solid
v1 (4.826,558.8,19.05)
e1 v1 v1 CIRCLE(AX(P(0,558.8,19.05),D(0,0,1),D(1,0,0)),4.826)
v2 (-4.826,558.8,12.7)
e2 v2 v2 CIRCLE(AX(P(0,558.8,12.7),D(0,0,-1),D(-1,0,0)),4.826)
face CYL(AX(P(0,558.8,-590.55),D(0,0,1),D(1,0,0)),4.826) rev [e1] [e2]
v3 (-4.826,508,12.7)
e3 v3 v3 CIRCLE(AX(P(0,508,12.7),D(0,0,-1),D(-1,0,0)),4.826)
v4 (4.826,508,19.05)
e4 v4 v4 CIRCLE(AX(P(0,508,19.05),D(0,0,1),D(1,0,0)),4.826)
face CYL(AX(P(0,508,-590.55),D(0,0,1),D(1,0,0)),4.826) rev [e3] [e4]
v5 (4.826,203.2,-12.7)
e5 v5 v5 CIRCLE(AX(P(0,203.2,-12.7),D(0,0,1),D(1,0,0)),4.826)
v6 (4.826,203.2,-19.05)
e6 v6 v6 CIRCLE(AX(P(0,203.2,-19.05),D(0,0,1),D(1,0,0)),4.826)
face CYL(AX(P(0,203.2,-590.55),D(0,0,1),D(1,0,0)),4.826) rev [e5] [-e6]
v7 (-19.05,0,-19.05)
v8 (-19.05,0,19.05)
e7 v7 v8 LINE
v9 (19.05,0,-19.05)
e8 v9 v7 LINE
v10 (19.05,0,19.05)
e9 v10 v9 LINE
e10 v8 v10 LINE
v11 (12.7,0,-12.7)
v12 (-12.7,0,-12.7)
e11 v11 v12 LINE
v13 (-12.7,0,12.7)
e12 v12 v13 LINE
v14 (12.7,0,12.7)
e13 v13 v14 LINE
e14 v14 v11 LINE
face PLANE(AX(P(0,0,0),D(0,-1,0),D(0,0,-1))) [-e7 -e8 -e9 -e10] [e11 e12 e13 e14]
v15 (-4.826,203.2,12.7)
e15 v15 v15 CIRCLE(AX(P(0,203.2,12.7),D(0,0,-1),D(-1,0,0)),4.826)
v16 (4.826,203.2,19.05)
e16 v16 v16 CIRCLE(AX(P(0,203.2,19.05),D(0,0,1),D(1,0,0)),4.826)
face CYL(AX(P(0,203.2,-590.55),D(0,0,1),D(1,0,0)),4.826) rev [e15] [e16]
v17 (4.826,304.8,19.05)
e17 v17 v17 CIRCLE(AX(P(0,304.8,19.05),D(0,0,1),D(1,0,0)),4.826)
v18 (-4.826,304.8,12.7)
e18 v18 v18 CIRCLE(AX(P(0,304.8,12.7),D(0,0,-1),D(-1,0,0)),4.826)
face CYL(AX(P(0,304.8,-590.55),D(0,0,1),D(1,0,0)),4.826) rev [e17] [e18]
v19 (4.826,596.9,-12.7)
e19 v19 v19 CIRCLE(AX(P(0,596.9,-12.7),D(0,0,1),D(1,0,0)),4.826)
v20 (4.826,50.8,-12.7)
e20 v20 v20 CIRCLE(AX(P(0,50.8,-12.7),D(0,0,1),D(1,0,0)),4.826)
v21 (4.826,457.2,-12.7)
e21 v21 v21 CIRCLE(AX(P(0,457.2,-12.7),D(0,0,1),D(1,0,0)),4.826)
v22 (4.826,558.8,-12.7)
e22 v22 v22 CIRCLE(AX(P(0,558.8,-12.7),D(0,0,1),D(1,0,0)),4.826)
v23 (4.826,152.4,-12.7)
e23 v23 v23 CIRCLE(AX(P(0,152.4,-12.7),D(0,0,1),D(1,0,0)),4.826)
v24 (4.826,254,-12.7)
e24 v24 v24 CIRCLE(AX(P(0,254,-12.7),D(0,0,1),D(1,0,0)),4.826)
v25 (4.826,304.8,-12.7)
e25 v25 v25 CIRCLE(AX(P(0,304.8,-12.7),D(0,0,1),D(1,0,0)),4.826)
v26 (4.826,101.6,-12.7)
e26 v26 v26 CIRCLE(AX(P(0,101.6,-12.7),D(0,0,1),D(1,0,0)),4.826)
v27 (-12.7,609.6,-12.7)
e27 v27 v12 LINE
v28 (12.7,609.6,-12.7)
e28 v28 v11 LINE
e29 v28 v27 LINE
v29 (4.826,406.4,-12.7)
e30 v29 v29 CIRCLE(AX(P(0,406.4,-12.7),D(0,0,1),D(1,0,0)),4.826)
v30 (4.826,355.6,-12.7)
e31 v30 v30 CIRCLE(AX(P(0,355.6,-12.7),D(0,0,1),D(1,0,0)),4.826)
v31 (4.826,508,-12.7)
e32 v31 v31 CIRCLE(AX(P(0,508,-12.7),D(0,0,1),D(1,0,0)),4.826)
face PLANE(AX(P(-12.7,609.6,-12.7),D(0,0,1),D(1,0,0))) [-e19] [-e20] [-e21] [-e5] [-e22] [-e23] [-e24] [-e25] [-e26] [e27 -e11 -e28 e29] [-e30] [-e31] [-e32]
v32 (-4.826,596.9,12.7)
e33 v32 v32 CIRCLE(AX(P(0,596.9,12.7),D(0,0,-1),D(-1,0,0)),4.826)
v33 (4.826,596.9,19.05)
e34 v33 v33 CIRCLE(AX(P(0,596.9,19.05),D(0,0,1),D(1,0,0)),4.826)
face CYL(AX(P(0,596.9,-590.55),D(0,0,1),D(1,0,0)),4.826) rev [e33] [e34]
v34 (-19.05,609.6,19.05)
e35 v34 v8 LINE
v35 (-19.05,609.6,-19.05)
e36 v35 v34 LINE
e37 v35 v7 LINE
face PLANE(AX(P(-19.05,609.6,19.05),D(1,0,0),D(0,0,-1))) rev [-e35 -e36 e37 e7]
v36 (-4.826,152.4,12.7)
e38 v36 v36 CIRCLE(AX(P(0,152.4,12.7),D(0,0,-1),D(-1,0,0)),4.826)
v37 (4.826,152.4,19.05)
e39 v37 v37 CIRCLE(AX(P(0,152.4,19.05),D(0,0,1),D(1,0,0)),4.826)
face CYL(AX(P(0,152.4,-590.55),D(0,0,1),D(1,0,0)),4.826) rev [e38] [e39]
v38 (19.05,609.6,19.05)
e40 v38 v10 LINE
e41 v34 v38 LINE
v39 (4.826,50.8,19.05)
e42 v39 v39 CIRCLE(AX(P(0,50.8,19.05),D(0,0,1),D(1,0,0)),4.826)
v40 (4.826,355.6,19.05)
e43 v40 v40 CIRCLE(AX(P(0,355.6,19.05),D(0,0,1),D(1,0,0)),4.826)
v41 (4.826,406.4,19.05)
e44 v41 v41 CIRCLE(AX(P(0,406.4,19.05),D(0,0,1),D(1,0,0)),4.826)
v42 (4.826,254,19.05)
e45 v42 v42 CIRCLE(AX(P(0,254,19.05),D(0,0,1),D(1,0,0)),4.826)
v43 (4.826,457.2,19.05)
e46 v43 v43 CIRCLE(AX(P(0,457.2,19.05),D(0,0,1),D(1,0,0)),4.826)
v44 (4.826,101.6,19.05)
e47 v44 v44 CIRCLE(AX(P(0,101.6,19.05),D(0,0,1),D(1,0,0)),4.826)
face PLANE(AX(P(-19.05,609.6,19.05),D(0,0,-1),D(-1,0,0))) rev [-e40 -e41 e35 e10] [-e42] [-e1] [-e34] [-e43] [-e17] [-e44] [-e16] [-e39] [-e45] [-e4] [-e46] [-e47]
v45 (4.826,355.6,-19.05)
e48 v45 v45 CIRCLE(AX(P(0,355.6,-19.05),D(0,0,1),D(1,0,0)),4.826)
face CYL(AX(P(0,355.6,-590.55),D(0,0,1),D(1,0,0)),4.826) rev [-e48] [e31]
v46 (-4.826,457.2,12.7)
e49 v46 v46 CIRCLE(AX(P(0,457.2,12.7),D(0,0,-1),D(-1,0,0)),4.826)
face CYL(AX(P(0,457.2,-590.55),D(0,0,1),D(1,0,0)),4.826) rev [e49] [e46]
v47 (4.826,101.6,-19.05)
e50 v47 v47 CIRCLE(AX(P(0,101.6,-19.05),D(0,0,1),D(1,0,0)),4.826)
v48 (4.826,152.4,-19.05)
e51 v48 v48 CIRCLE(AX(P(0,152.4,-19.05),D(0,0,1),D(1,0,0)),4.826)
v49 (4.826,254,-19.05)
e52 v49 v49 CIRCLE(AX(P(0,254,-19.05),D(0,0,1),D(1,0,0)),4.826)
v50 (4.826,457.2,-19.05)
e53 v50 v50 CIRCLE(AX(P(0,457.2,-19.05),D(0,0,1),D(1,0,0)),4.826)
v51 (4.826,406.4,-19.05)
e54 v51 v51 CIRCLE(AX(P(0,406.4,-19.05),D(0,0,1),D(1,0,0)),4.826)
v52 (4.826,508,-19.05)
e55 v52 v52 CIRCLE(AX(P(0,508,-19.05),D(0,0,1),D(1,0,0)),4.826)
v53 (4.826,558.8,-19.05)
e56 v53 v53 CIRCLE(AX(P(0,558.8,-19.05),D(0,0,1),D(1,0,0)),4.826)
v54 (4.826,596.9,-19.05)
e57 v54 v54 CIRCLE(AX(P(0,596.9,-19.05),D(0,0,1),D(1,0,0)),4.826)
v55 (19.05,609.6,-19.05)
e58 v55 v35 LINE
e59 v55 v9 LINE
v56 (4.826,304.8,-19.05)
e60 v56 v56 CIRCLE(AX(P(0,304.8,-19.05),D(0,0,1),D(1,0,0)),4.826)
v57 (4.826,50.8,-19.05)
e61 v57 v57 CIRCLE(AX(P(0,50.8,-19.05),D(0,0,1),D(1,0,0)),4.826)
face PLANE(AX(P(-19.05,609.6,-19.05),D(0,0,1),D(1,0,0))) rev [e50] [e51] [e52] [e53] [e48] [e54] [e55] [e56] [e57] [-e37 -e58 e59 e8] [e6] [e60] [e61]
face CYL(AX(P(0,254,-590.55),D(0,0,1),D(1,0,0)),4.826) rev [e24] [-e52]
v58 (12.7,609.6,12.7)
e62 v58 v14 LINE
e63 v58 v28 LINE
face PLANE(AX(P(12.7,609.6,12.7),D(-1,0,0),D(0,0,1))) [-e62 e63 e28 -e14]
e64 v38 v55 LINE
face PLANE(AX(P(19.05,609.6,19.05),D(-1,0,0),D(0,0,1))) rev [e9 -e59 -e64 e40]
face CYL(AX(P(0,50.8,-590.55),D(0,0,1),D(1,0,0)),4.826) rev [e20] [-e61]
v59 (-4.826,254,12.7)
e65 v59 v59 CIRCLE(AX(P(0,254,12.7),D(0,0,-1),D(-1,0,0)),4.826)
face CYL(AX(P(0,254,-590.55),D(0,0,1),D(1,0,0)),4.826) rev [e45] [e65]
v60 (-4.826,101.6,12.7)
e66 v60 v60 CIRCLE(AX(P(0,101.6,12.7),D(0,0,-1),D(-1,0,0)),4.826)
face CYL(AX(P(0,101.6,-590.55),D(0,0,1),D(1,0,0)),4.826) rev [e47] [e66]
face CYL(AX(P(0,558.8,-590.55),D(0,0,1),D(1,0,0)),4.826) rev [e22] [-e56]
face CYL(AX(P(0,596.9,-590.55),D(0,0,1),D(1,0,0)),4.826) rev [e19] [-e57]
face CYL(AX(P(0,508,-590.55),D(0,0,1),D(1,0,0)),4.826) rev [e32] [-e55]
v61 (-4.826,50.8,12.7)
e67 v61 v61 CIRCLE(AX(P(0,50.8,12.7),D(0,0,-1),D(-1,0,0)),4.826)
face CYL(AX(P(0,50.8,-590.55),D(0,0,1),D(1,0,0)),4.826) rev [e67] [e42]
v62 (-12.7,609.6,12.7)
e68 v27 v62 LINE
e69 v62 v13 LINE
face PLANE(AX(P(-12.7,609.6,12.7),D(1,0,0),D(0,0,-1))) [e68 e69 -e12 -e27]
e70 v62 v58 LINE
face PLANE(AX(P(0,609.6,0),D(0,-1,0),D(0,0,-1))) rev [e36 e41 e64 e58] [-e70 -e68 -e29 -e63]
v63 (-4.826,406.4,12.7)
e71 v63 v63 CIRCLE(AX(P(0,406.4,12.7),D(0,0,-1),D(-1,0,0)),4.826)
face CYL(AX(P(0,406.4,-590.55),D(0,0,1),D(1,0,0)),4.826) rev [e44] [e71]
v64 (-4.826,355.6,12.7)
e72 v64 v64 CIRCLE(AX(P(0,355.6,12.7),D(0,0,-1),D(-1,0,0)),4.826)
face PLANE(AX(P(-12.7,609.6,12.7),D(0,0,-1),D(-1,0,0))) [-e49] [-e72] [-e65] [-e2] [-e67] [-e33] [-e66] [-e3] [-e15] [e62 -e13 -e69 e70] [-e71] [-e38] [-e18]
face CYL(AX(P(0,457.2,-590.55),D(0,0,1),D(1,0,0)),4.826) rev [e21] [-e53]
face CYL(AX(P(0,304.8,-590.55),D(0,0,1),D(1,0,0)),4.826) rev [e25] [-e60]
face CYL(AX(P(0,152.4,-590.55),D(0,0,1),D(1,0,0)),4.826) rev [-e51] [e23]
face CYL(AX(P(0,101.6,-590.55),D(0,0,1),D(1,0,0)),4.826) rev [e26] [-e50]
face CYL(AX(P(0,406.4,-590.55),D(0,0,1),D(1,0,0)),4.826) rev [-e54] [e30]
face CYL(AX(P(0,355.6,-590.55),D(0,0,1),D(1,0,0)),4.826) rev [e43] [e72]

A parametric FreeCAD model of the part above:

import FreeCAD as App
import Part
import Sketcher
Q = App.Units.Quantity

doc = App.newDocument("Part")
body = doc.addObject("PartDesign::Body", "Body")

# Sketch on XZ plane
sketch1 = doc.addObject("Sketcher::SketchObject", "Sketch")
body.addObject(sketch1)
sketch1.AttachmentSupport = (doc.XZ_Plane, [""])
sketch1.MapMode = "FlatFace"
sketch1.addGeometry([
    Part.LineSegment(App.Vector(-19, -19, 0), App.Vector(-19, 19, 0)),  # 0
    Part.LineSegment(App.Vector(-19, 19, 0), App.Vector(19, 19, 0)),  # 1
    Part.LineSegment(App.Vector(19, 19, 0), App.Vector(19, -19, 0)),  # 2
    Part.LineSegment(App.Vector(19, -19, 0), App.Vector(-19, -19, 0)),  # 3
    Part.LineSegment(App.Vector(13, 13, 0), App.Vector(-13, 13, 0)),  # 4
    Part.LineSegment(App.Vector(-13, 13, 0), App.Vector(-13, -13, 0)),  # 5
    Part.LineSegment(App.Vector(-13, -13, 0), App.Vector(13, -13, 0)),  # 6
    Part.LineSegment(App.Vector(13, -13, 0), App.Vector(13, 13, 0)),  # 7
], False)
sketch1.addConstraint([
    Sketcher.Constraint("Coincident", 0, 2, 1, 1),
    Sketcher.Constraint("Coincident", 1, 2, 2, 1),
    Sketcher.Constraint("Coincident", 2, 2, 3, 1),
    Sketcher.Constraint("Coincident", 3, 2, 0, 1),
    Sketcher.Constraint("Coincident", 4, 2, 5, 1),
    Sketcher.Constraint("Coincident", 5, 2, 6, 1),
    Sketcher.Constraint("Coincident", 6, 2, 7, 1),
    Sketcher.Constraint("Coincident", 7, 2, 4, 1),
    Sketcher.Constraint("Vertical", 0),
    Sketcher.Constraint("Horizontal", 1),
    Sketcher.Constraint("Vertical", 2),
    Sketcher.Constraint("Horizontal", 3),
    Sketcher.Constraint("Horizontal", 4),
    Sketcher.Constraint("Vertical", 5),
    Sketcher.Constraint("Horizontal", 6),
    Sketcher.Constraint("Vertical", 7),
    Sketcher.Constraint("Symmetric", 0, 2, 2, 2, -1, 1),
    Sketcher.Constraint("Symmetric", 4, 2, 6, 2, -1, 1),
    Sketcher.Constraint("Equal", 3, 0),
    Sketcher.Constraint("Equal", 6, 5),
    Sketcher.Constraint("DistanceX", 4, 2, 4, 1, Q("1 in")),
    Sketcher.Constraint("DistanceX", 1, 1, 1, 2, Q("1.5 in")),
])
pad1 = doc.addObject("PartDesign::Pad", "Pad")
body.addObject(pad1)
pad1.Profile = sketch1
pad1.Length = Q("24 in")
pad1.Reversed = True

# Sketch on XY plane
sketch2 = doc.addObject("Sketcher::SketchObject", "Sketch001")
body.addObject(sketch2)
sketch2.AttachmentSupport = (doc.XY_Plane, [""])
sketch2.MapMode = "FlatFace"
sketch2.AttachmentOffset = App.Placement(App.Vector(0, 0, 0.75 * 25.4), App.Rotation())
sketch2.addGeometry([
    Part.Circle(App.Vector(0, 596.9, 0), App.Vector(0, 0, 1), 4.8),  # 0
    Part.Circle(App.Vector(0, 558.8, 0), App.Vector(0, 0, 1), 4.8),  # 1
    Part.Circle(App.Vector(0, 508, 0), App.Vector(0, 0, 1), 4.8),  # 2
    Part.Circle(App.Vector(0, 457.2, 0), App.Vector(0, 0, 1), 4.8),  # 3
    Part.Circle(App.Vector(0, 406.4, 0), App.Vector(0, 0, 1), 4.8),  # 4
    Part.Circle(App.Vector(0, 355.6, 0), App.Vector(0, 0, 1), 4.8),  # 5
    Part.Circle(App.Vector(0, 304.8, 0), App.Vector(0, 0, 1), 4.8),  # 6
    Part.Circle(App.Vector(0, 254, 0), App.Vector(0, 0, 1), 4.8),  # 7
    Part.Circle(App.Vector(0, 203.2, 0), App.Vector(0, 0, 1), 4.8),  # 8
    Part.Circle(App.Vector(0, 152.4, 0), App.Vector(0, 0, 1), 4.8),  # 9
    Part.Circle(App.Vector(0, 101.6, 0), App.Vector(0, 0, 1), 4.8),  # 10
    Part.Circle(App.Vector(0, 50.8, 0), App.Vector(0, 0, 1), 4.8),  # 11
], False)
sketch2.addConstraint([
    Sketcher.Constraint("Equal", 0, 1),
    Sketcher.Constraint("Equal", 1, 2),
    Sketcher.Constraint("Equal", 2, 3),
    Sketcher.Constraint("Equal", 3, 4),
    Sketcher.Constraint("Equal", 4, 5),
    Sketcher.Constraint("Equal", 5, 6),
    Sketcher.Constraint("Equal", 6, 7),
    Sketcher.Constraint("Equal", 7, 8),
    Sketcher.Constraint("Equal", 8, 9),
    Sketcher.Constraint("Equal", 9, 10),
    Sketcher.Constraint("Equal", 10, 11),
    Sketcher.Constraint("PointOnObject", 0, 3, -2),
    Sketcher.Constraint("PointOnObject", 1, 3, -2),
    Sketcher.Constraint("PointOnObject", 2, 3, -2),
    Sketcher.Constraint("PointOnObject", 3, 3, -2),
    Sketcher.Constraint("PointOnObject", 4, 3, -2),
    Sketcher.Constraint("PointOnObject", 5, 3, -2),
    Sketcher.Constraint("PointOnObject", 6, 3, -2),
    Sketcher.Constraint("PointOnObject", 7, 3, -2),
    Sketcher.Constraint("PointOnObject", 8, 3, -2),
    Sketcher.Constraint("PointOnObject", 9, 3, -2),
    Sketcher.Constraint("PointOnObject", 10, 3, -2),
    Sketcher.Constraint("PointOnObject", 11, 3, -2),
    Sketcher.Constraint("Diameter", 0, Q("0.38 in")),
    Sketcher.Constraint("DistanceY", -1, 1, 1, 3, Q("22 in")),
    Sketcher.Constraint("DistanceY", -1, 1, 2, 3, Q("20 in")),
    Sketcher.Constraint("DistanceY", -1, 1, 3, 3, Q("18 in")),
    Sketcher.Constraint("DistanceY", -1, 1, 4, 3, Q("16 in")),
    Sketcher.Constraint("DistanceY", -1, 1, 5, 3, Q("14 in")),
    Sketcher.Constraint("DistanceY", -1, 1, 6, 3, Q("12 in")),
    Sketcher.Constraint("DistanceY", -1, 1, 7, 3, Q("10 in")),
    Sketcher.Constraint("DistanceY", -1, 1, 8, 3, Q("8 in")),
    Sketcher.Constraint("DistanceY", -1, 1, 9, 3, Q("6 in")),
    Sketcher.Constraint("DistanceY", -1, 1, 10, 3, Q("4 in")),
    Sketcher.Constraint("DistanceY", -1, 1, 11, 3, Q("2 in")),
    Sketcher.Constraint("DistanceY", -1, 1, 0, 3, Q("23.5 in")),
])
pocket1 = doc.addObject("PartDesign::Pocket", "Pocket")
body.addObject(pocket1)
pocket1.Profile = sketch2
pocket1.Length = Q("24 in")

doc.recompute()
